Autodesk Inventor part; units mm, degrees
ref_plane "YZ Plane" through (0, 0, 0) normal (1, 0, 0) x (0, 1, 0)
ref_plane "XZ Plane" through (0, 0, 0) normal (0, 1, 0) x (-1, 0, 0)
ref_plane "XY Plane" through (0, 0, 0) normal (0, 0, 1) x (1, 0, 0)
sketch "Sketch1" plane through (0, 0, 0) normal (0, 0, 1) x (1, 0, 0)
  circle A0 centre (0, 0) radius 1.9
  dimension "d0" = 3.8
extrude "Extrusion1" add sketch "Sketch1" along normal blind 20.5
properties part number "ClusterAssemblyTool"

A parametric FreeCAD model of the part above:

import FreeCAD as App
import Part
import Sketcher
from FreeCAD import Vector

doc = App.newDocument("Part")
body = doc.addObject("PartDesign::Body", "Body")

# Sketch on XY plane
sketch1 = body.newObject("Sketcher::SketchObject", "Sketch")
sketch1.AttachmentSupport = (doc.getObject("XY_Plane"), [""])
sketch1.MapMode = "FlatFace"
sketch1.addGeometry(Part.Circle(Vector(0, 0, 0), Vector(0, 0, 1), 1.9), False)
sketch1.addConstraint(Sketcher.Constraint("Coincident", 0, 3, -1, 1))
sketch1.addConstraint(Sketcher.Constraint("Diameter", 0, 3.8))
pad1 = body.newObject("PartDesign::Pad", "Pad")
pad1.Profile = sketch1
pad1.Length = 20.5

doc.recompute()
